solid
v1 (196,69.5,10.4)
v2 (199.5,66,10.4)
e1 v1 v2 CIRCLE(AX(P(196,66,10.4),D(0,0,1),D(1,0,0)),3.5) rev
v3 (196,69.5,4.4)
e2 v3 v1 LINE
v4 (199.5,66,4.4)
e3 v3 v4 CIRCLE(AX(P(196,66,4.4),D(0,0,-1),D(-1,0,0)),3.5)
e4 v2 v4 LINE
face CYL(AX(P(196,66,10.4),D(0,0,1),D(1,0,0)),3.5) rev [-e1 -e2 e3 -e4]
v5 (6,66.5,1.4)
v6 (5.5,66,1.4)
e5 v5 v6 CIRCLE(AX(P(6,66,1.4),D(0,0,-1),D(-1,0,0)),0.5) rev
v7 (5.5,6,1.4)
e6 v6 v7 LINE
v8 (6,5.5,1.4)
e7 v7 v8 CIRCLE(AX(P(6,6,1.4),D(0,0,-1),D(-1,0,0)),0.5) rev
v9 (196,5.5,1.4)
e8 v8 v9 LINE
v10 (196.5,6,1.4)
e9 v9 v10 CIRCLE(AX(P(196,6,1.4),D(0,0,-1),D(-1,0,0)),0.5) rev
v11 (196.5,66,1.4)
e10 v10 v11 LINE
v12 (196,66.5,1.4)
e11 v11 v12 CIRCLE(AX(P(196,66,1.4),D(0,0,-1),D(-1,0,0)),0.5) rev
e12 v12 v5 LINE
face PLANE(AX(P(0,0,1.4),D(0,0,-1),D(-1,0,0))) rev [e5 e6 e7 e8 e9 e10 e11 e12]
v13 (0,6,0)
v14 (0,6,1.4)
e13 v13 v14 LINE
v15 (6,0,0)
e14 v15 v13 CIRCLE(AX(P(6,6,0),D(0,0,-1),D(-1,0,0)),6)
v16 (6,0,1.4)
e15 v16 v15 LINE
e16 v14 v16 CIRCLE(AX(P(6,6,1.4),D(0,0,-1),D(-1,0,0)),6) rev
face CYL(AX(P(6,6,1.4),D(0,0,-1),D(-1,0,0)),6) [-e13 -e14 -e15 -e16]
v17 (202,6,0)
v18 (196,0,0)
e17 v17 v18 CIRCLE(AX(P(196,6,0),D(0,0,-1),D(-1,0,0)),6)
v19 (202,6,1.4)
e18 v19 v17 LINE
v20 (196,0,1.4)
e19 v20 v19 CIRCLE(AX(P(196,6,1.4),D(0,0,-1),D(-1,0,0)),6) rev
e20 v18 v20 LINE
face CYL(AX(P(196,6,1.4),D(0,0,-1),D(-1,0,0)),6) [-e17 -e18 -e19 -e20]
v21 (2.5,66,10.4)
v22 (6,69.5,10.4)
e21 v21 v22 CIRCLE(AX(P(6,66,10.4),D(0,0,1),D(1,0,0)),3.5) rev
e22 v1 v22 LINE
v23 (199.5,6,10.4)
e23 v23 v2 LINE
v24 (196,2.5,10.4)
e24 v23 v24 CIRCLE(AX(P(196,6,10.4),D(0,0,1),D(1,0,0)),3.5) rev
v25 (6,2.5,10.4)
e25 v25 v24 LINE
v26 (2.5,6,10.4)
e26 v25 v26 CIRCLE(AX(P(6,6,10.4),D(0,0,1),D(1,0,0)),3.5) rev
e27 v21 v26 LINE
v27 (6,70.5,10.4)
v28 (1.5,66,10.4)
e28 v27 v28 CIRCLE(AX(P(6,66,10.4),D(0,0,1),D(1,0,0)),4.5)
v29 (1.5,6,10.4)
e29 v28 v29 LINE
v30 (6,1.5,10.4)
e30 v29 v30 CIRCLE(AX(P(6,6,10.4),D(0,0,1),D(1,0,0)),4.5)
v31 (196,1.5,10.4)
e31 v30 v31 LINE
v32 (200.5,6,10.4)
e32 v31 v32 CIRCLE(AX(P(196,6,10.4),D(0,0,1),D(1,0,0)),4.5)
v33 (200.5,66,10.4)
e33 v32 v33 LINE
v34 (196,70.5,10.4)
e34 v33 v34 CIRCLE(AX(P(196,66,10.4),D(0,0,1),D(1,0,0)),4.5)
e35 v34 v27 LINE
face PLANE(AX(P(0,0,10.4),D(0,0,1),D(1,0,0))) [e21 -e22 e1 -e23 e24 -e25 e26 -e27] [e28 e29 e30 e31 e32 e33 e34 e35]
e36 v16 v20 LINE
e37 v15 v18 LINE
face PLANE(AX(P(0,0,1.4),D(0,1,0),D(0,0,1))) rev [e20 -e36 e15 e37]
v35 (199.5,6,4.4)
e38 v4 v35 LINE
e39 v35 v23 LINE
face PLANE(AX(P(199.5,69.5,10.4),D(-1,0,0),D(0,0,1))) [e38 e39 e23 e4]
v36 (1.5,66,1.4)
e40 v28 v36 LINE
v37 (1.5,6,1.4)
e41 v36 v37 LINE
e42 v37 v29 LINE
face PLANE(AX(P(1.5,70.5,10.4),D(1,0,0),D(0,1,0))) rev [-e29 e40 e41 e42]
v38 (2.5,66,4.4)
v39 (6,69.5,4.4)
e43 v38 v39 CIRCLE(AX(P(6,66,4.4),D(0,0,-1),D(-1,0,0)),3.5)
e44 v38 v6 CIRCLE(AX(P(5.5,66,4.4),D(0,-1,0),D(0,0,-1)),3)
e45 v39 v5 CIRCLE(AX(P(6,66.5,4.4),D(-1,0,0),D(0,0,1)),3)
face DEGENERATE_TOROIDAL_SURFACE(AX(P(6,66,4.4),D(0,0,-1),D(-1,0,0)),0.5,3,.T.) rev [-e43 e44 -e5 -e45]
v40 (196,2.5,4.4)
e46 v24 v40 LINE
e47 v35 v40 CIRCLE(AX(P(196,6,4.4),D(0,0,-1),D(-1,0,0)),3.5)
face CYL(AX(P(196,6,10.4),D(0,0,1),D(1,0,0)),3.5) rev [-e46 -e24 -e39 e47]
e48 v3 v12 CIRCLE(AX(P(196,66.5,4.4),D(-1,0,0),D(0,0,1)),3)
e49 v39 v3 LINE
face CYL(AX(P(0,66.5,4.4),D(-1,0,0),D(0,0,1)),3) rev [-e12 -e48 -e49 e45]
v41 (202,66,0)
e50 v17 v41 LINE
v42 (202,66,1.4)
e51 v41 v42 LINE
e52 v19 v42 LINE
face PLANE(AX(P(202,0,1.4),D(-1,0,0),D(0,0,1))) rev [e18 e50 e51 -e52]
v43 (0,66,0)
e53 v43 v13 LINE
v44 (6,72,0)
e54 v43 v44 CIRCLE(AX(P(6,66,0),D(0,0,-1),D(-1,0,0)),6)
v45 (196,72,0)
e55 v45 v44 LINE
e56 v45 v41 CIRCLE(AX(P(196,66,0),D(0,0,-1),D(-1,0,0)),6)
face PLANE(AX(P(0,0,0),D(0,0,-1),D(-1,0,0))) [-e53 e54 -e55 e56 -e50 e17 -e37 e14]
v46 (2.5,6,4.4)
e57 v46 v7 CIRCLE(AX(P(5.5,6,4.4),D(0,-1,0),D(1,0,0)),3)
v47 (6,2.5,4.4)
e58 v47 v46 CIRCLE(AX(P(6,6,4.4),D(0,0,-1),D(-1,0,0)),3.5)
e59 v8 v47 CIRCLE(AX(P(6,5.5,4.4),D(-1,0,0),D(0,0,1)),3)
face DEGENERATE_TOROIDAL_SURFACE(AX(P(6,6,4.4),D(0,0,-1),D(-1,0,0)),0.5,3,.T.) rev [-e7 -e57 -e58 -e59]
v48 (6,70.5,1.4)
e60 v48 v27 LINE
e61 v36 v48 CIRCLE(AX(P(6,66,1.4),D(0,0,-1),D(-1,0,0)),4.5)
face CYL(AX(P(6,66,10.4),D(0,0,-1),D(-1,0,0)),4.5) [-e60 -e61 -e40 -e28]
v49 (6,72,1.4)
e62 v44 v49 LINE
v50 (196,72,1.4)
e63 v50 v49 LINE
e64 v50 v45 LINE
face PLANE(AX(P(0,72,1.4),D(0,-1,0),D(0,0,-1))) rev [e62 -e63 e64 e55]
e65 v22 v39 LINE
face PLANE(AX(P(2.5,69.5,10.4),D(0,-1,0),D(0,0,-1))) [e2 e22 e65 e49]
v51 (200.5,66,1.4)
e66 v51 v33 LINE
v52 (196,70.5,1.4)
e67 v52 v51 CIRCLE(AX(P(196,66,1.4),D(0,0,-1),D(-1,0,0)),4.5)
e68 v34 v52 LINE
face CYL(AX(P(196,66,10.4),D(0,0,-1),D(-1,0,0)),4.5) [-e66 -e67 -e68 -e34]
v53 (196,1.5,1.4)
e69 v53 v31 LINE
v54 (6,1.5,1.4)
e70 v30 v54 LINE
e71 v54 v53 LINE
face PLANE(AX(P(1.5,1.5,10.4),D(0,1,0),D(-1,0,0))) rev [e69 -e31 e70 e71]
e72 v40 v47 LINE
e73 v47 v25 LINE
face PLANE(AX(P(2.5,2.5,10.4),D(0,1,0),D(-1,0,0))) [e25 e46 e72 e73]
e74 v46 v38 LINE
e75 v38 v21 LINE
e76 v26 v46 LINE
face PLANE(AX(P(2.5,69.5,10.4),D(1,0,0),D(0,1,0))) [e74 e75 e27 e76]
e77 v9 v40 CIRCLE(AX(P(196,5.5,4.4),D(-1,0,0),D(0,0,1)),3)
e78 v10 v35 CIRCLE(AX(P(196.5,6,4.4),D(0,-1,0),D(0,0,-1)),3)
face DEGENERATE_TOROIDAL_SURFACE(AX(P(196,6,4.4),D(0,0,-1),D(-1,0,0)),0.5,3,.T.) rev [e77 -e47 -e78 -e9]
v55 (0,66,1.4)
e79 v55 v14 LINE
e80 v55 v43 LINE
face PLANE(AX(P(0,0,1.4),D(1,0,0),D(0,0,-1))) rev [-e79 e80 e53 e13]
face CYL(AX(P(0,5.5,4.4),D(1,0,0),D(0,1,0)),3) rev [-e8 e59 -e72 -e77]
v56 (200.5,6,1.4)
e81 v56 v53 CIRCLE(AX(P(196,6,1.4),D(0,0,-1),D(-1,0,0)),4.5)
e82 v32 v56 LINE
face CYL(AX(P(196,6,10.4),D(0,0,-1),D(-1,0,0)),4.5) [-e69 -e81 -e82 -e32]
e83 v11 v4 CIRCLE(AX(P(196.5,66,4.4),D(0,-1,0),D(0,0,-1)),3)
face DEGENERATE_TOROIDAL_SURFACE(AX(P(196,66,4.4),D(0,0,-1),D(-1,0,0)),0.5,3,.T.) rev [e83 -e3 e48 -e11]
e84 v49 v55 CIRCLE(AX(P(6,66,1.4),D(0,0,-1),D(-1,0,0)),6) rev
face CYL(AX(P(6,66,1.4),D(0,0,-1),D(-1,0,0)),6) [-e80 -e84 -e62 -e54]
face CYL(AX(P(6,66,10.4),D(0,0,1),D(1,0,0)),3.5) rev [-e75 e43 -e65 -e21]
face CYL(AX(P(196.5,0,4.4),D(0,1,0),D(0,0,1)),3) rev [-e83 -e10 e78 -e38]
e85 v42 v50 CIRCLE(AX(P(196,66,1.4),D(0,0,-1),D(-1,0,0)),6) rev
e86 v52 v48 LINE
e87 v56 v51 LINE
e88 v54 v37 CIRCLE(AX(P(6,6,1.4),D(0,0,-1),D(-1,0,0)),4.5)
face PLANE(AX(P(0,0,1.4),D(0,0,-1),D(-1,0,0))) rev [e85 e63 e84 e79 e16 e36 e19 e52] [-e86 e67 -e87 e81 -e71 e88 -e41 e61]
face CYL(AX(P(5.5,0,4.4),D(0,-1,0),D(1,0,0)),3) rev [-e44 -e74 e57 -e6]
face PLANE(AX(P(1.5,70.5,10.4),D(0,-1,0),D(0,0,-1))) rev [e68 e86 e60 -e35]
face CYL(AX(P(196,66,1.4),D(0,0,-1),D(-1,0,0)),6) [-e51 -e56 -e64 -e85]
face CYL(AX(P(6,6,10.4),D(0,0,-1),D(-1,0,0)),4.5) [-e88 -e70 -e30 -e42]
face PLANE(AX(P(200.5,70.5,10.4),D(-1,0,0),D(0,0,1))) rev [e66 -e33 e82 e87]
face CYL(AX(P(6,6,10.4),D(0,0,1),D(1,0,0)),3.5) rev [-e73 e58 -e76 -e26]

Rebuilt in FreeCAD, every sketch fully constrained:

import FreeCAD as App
import Part
import Sketcher

V = App.Vector


def edges_at(feature, points):
    """Names of the edges that pass closest to the given points."""
    edges = feature.Shape.Edges
    near = lambda p: min(range(len(edges)), key=lambda i: edges[i].distToShape(Part.Vertex(*p))[0])
    return sorted({f"Edge{near(p) + 1}" for p in points})


def add_polygon(sketch, points):
    """Adds a closed chain of lines whose ends are joined by coincident constraints."""
    first, n = sketch.GeometryCount, len(points)
    for a, b in zip(points, points[1:] + points[:1]):
        sketch.addGeometry(Part.LineSegment(App.Vector(*a, 0), App.Vector(*b, 0)), False)
    for i in range(n):
        sketch.addConstraint(Sketcher.Constraint("Coincident", first + i, 2, first + (i + 1) % n, 1))

doc = App.newDocument("Part")
body = doc.addObject("PartDesign::Body", "Body")

# Sketch on XY plane
sketch1 = body.newObject("Sketcher::SketchObject", "Sketch")
sketch1.AttachmentSupport = (doc.getObject("XY_Plane"), [""])
sketch1.MapMode = "FlatFace"
add_polygon(sketch1, [(0, 72), (0, 0), (202, 0), (202, 72)])  # lines 0-3
sketch1.addConstraint(Sketcher.Constraint("Vertical", 0))
sketch1.addConstraint(Sketcher.Constraint("Horizontal", 1))
sketch1.addConstraint(Sketcher.Constraint("Vertical", 2))
sketch1.addConstraint(Sketcher.Constraint("Horizontal", 3))
sketch1.addConstraint(Sketcher.Constraint("Coincident", 0, 2, -1, 1))
sketch1.addConstraint(Sketcher.Constraint("DistanceX", 1, 1, 1, 2, 202.0))
sketch1.addConstraint(Sketcher.Constraint("DistanceY", 0, 2, 0, 1, 72.0))
pad1 = body.newObject("PartDesign::Pad", "Pad")
pad1.Profile = sketch1
pad1.Length = 1.4

# Sketch on XY plane
sketch2 = body.newObject("Sketcher::SketchObject", "Sketch001")
sketch2.AttachmentSupport = (doc.getObject("XY_Plane"), [""])
sketch2.MapMode = "FlatFace"
sketch2.AttachmentOffset = App.Placement(V(0, 0, 1.4), App.Rotation())
add_polygon(sketch2, [(2, 70), (2, 2), (200, 2), (200, 70)])  # lines 0-3
add_polygon(sketch2, [(200, 2), (2, 2), (2, 70), (200, 70)])  # lines 4-7
sketch2.addConstraint(Sketcher.Constraint("Vertical", 0))
sketch2.addConstraint(Sketcher.Constraint("Horizontal", 1))
sketch2.addConstraint(Sketcher.Constraint("Vertical", 2))
sketch2.addConstraint(Sketcher.Constraint("Horizontal", 3))
sketch2.addConstraint(Sketcher.Constraint("Horizontal", 4))
sketch2.addConstraint(Sketcher.Constraint("Vertical", 5))
sketch2.addConstraint(Sketcher.Constraint("Horizontal", 6))
sketch2.addConstraint(Sketcher.Constraint("Vertical", 7))
sketch2.addConstraint(Sketcher.Constraint("DistanceX", 1, 1, 1, 2, 199.0))
sketch2.addConstraint(Sketcher.Constraint("DistanceX", 4, 2, 4, 1, 197.0))
sketch2.addConstraint(Sketcher.Constraint("DistanceY", 0, 2, 0, 1, 69.0))
sketch2.addConstraint(Sketcher.Constraint("DistanceY", 5, 1, 5, 2, 67.0))
sketch2.addConstraint(Sketcher.Constraint("DistanceX", 0, 2, 4, 2, 1.0))
sketch2.addConstraint(Sketcher.Constraint("DistanceY", 0, 2, 4, 2, 1.0))
sketch2.addConstraint(Sketcher.Constraint("DistanceX", -1, 1, 0, 2, 1.5))
sketch2.addConstraint(Sketcher.Constraint("DistanceY", -1, 1, 0, 2, 1.5))
pad2 = body.newObject("PartDesign::Pad", "Pad001")
pad2.Profile = sketch2
pad2.Length = 9
doc.recompute()

fillet = body.newObject("PartDesign::Fillet", "Fillet")
fillet.Base = (pad2, edges_at(pad2, [
    (2.5, 2.5, 5.9),
    (199.5, 2.5, 5.9),
    (199.5, 69.5, 5.9),
    (2.5, 69.5, 5.9),
]))
fillet.Radius = 3.5
doc.recompute()

fillet2 = body.newObject("PartDesign::Fillet", "Fillet001")
fillet2.Base = (fillet, edges_at(fillet, [
    (1.5, 70.5, 5.9),
    (1.5, 1.5, 5.9),
    (200.5, 1.5, 5.9),
    (200.5, 70.5, 5.9),
]))
fillet2.Radius = 4.5
doc.recompute()

fillet3 = body.newObject("PartDesign::Fillet", "Fillet002")
fillet3.Base = (fillet2, edges_at(fillet2, [
    (0, 72, 0.7),
    (202, 72, 0.7),
    (202, 0, 0.7),
    (0, 0, 0.7),
]))
fillet3.Radius = 6
doc.recompute()

fillet4 = body.newObject("PartDesign::Fillet", "Fillet003")
fillet4.Base = (fillet3, edges_at(fillet3, [
    (101, 69.5, 1.4),
    (2.5, 36, 1.4),
    (101, 2.5, 1.4),
    (199.5, 36, 1.4),
    (198.475, 3.525, 1.4),
    (198.475, 68.475, 1.4),
    (3.525, 3.525, 1.4),
    (3.525, 68.475, 1.4),
]))
fillet4.Radius = 3

doc.recompute()
